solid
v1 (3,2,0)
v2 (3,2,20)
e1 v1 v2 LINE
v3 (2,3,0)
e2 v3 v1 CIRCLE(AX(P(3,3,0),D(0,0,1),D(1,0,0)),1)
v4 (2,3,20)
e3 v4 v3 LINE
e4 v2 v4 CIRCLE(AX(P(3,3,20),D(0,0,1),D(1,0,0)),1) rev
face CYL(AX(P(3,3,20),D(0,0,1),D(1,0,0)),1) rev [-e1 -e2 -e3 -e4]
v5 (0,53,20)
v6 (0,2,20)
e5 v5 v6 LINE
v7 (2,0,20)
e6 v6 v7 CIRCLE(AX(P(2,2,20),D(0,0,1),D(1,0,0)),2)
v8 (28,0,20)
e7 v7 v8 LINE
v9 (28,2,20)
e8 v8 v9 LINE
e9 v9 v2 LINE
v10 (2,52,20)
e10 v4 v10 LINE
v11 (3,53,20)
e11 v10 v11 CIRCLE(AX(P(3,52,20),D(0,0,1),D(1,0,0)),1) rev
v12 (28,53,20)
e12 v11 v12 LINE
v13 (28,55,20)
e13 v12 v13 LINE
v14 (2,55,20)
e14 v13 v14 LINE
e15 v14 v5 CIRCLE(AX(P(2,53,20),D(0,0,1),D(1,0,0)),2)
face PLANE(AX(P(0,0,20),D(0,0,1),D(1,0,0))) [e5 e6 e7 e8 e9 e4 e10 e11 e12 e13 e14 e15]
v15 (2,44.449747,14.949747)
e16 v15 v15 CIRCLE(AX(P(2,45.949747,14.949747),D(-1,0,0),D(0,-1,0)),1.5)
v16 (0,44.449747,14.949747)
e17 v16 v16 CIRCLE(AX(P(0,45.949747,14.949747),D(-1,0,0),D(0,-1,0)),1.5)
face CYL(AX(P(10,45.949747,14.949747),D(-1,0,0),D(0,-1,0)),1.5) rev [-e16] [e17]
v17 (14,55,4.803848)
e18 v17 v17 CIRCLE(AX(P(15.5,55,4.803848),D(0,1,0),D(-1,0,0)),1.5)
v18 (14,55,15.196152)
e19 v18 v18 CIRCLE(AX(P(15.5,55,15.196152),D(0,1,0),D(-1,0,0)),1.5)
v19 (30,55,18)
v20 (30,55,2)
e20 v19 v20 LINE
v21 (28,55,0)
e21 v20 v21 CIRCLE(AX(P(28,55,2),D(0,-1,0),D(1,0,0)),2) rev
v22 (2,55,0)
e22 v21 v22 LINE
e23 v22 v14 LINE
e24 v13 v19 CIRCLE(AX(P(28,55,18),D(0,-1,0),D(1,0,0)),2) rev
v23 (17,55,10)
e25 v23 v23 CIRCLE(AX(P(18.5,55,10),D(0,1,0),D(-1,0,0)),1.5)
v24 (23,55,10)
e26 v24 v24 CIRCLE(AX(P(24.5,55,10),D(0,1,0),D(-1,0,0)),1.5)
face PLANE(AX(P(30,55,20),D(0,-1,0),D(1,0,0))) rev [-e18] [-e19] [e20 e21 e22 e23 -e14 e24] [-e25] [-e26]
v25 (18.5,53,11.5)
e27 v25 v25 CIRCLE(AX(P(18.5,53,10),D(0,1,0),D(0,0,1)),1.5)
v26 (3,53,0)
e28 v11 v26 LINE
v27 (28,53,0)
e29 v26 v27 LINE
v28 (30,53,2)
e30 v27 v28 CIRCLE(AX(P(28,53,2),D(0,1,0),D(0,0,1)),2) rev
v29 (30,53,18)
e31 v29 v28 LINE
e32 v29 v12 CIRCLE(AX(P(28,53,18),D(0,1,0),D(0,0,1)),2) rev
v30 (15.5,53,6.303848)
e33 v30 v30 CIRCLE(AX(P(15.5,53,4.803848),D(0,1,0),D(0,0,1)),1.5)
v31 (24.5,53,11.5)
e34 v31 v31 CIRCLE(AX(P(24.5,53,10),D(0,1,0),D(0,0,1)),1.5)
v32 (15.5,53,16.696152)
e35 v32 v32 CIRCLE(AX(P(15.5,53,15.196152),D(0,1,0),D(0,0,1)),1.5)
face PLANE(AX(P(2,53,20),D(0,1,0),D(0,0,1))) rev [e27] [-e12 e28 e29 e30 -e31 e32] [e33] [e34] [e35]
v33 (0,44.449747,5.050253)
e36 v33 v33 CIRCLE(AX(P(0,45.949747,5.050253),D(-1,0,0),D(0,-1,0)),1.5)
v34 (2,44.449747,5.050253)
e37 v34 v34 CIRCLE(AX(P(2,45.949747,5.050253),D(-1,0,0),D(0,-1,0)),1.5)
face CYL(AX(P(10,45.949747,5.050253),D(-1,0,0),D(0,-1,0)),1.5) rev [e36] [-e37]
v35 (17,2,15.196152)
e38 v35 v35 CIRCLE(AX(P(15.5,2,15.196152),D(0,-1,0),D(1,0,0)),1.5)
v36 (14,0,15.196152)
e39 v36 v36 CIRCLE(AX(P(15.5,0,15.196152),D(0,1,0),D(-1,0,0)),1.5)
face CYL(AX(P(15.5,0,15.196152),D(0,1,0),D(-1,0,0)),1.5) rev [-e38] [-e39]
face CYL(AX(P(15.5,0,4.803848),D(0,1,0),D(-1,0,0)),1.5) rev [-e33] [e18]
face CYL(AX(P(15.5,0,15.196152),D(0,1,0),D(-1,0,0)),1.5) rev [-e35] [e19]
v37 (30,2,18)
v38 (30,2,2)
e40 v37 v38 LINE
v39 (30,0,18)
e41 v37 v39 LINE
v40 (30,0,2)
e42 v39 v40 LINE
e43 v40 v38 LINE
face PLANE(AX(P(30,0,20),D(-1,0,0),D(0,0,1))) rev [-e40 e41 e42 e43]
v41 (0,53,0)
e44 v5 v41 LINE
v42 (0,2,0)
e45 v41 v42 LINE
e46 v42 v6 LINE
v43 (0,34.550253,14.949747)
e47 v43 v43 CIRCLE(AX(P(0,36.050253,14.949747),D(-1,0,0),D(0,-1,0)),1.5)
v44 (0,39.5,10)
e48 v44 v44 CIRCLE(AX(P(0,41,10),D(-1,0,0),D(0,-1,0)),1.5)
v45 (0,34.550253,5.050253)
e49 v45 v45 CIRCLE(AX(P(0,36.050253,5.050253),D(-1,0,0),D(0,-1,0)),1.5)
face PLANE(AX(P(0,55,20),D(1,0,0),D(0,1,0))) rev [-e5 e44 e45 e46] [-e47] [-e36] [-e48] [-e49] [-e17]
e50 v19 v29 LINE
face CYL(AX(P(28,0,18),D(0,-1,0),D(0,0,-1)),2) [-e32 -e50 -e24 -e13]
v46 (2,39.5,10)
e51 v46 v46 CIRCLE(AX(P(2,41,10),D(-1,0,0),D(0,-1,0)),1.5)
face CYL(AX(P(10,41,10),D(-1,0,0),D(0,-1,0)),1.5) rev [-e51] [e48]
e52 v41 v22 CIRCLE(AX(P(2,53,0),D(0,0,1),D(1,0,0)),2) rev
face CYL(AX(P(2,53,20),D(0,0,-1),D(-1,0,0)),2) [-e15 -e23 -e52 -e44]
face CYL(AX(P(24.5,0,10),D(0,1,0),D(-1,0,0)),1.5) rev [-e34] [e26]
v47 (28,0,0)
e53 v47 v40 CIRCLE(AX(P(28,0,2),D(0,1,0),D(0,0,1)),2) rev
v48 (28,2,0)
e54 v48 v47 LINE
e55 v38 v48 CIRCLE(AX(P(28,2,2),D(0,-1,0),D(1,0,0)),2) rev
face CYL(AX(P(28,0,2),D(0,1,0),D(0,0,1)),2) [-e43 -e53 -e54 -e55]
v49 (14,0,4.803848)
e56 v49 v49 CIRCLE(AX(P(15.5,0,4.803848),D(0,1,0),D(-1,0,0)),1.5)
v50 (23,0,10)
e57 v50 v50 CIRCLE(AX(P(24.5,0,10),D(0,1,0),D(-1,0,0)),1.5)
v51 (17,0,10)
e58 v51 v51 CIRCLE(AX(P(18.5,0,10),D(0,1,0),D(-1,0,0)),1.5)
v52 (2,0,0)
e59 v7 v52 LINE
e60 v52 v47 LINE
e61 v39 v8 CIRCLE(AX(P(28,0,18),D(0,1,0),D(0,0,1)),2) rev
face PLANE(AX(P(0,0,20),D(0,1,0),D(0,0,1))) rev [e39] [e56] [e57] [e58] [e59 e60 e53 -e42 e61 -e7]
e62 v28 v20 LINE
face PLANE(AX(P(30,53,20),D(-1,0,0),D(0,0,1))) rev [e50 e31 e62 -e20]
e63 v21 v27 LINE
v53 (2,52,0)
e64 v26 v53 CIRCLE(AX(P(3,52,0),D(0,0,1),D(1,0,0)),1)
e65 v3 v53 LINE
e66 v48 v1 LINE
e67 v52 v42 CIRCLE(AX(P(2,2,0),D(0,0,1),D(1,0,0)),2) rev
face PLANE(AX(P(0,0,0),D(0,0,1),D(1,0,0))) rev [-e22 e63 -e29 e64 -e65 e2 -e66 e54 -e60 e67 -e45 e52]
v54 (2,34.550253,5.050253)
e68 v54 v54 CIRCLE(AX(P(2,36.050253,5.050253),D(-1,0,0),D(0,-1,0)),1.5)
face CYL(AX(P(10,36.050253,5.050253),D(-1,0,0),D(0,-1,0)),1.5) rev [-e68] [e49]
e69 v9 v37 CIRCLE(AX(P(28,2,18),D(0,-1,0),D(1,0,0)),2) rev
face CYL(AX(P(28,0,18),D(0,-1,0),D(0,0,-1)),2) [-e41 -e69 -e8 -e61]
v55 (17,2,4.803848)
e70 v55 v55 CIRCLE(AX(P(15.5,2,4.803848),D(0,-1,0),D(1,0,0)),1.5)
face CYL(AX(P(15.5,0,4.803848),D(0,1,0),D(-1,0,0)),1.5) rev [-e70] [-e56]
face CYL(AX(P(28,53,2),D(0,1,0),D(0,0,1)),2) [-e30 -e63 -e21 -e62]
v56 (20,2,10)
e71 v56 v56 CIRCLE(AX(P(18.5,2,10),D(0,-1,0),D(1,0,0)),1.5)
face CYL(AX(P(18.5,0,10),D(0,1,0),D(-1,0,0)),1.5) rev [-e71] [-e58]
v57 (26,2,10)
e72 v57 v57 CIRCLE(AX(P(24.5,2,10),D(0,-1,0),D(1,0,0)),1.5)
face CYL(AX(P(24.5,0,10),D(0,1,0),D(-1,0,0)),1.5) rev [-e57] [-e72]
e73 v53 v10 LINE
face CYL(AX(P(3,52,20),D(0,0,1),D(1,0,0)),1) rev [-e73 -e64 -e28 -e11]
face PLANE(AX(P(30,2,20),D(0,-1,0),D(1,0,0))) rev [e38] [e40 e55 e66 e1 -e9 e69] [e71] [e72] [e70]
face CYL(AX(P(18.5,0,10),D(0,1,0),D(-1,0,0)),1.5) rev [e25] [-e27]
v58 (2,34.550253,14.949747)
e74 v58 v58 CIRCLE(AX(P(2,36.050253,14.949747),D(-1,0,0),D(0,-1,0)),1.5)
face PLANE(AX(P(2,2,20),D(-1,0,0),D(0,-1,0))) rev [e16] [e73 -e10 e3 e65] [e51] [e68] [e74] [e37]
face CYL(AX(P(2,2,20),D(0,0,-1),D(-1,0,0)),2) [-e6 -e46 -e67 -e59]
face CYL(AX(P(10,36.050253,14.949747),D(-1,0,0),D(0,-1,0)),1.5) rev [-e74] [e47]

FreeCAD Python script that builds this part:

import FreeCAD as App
import Part
import Sketcher
from FreeCAD import Vector


def edges_at(feature, points):
    """Names of the edges that pass closest to the given points."""
    edges = feature.Shape.Edges
    near = lambda p: min(range(len(edges)), key=lambda i: edges[i].distToShape(Part.Vertex(*p))[0])
    return sorted({f"Edge{near(p) + 1}" for p in points})


def add_polygon(sketch, points):
    """Adds a closed chain of lines whose ends are joined by coincident constraints."""
    first, n = sketch.GeometryCount, len(points)
    for a, b in zip(points, points[1:] + points[:1]):
        sketch.addGeometry(Part.LineSegment(App.Vector(*a, 0), App.Vector(*b, 0)), False)
    for i in range(n):
        sketch.addConstraint(Sketcher.Constraint("Coincident", first + i, 2, first + (i + 1) % n, 1))

doc = App.newDocument("Part")
body = doc.addObject("PartDesign::Body", "Body")

sketch1 = body.newObject("Sketcher::SketchObject", "Sketch")
sketch1.AttachmentSupport = (doc.getObject("XY_Plane"), [""])
sketch1.MapMode = "FlatFace"
add_polygon(sketch1, [(0, 0), (30, 0), (30, 2), (2, 2), (2, 53), (30, 53), (30, 55), (0, 55)])
sketch1.addConstraint([
    Sketcher.Constraint("Horizontal", 0),
    Sketcher.Constraint("Vertical", 1),
    Sketcher.Constraint("Horizontal", 2),
    Sketcher.Constraint("Vertical", 3),
    Sketcher.Constraint("Horizontal", 4),
    Sketcher.Constraint("Vertical", 5),
    Sketcher.Constraint("Horizontal", 6),
    Sketcher.Constraint("Vertical", 7),
    Sketcher.Constraint("Coincident", 7, 2, -1, 1),
    Sketcher.Constraint("Vertical", 1, 2, 4, 2),
    Sketcher.Constraint("Equal", 1, 5),
    Sketcher.Constraint("DistanceX", 0, 1, 0, 2, 30.0),
    Sketcher.Constraint("DistanceX", 2, 2, 2, 1, 28.0),
    Sketcher.Constraint("DistanceY", 1, 1, 1, 2, 2.0),
    Sketcher.Constraint("DistanceY", 3, 1, 3, 2, 51.0),
])
pad1 = body.newObject("PartDesign::Pad", "Pad")
pad1.Profile = sketch1
pad1.Length = 20

sketch2 = body.newObject("Sketcher::SketchObject", "Sketch001")
sketch2.AttachmentSupport = (doc.getObject("YZ_Plane"), [""])
sketch2.MapMode = "FlatFace"
sketch2.addGeometry([
    Part.Circle(Vector(41, 10, 0), Vector(0, 0, 1), 1.5),
    Part.Circle(Vector(45.949747, 5.050253, 0), Vector(0, 0, 1), 1.5),
    Part.Circle(Vector(45.949747, 14.949747, 0), Vector(0, 0, 1), 1.5),
    Part.Circle(Vector(36.050253, 14.949747, 0), Vector(0, 0, 1), 1.5),
    Part.Circle(Vector(36.050253, 5.050253, 0), Vector(0, 0, 1), 1.5),
], False)
sketch2.addConstraint([
    Sketcher.Constraint("Equal", 0, 1),
    Sketcher.Constraint("Equal", 1, 2),
    Sketcher.Constraint("Equal", 2, 3),
    Sketcher.Constraint("Equal", 3, 4),
    Sketcher.Constraint("Horizontal", 2, 3, 3, 3),
    Sketcher.Constraint("Horizontal", 1, 3, 4, 3),
    Sketcher.Constraint("Vertical", 1, 3, 2, 3),
    Sketcher.Constraint("Vertical", 3, 3, 4, 3),
    Sketcher.Constraint("Diameter", 0, 3.0),
    Sketcher.Constraint("DistanceX", -1, 1, 0, 3, 41.0),
    Sketcher.Constraint("DistanceY", -1, 1, 0, 3, 10.0),
    Sketcher.Constraint("DistanceX", -1, 1, 1, 3, 45.949747),
    Sketcher.Constraint("DistanceY", -1, 1, 1, 3, 5.050253),
    Sketcher.Constraint("DistanceY", -1, 1, 2, 3, 14.949747),
    Sketcher.Constraint("DistanceX", -1, 1, 3, 3, 36.050253),
])
pocket1 = body.newObject("PartDesign::Pocket", "Pocket")
pocket1.Profile = sketch2
pocket1.Length = 10
pocket1.Reversed = True

sketch3 = body.newObject("Sketcher::SketchObject", "Sketch002")
sketch3.AttachmentSupport = (doc.getObject("XZ_Plane"), [""])
sketch3.MapMode = "FlatFace"
sketch3.AttachmentOffset = App.Placement(Vector(0, 0, -55), App.Rotation())
sketch3.addGeometry([
    Part.Circle(Vector(18.5, 10, 0), Vector(0, 0, 1), 1.5),
    Part.Circle(Vector(24.5, 10, 0), Vector(0, 0, 1), 1.5),
    Part.Circle(Vector(15.5, 15.196152, 0), Vector(0, 0, 1), 1.5),
    Part.Circle(Vector(15.5, 4.803848, 0), Vector(0, 0, 1), 1.5),
], False)
sketch3.addConstraint([
    Sketcher.Constraint("Equal", 0, 1),
    Sketcher.Constraint("Equal", 1, 2),
    Sketcher.Constraint("Equal", 2, 3),
    Sketcher.Constraint("Horizontal", 0, 3, 1, 3),
    Sketcher.Constraint("Vertical", 2, 3, 3, 3),
    Sketcher.Constraint("Diameter", 0, 3.0),
    Sketcher.Constraint("DistanceY", -1, 1, 0, 3, 10.0),
    Sketcher.Constraint("DistanceX", 0, 3, 1, 3, 6.0),
    Sketcher.Constraint("DistanceX", 2, 3, 0, 3, 3.0),
    Sketcher.Constraint("DistanceX", -1, 1, 0, 3, 18.5),
    Sketcher.Constraint("DistanceY", -1, 1, 2, 3, 15.196152),
    Sketcher.Constraint("DistanceY", -1, 1, 3, 3, 4.803848),
])
pocket2 = body.newObject("PartDesign::Pocket", "Pocket001")
pocket2.Profile = sketch3
pocket2.Type = "ThroughAll"
pocket2.Reversed = True
doc.recompute()

fillet = body.newObject("PartDesign::Fillet", "Fillet")
fillet.Base = (pocket2, edges_at(pocket2, [(0, 55, 10), (0, 0, 10)]))
fillet.Radius = 2
doc.recompute()

fillet2 = body.newObject("PartDesign::Fillet", "Fillet001")
fillet2.Base = (fillet, edges_at(fillet, [(2, 53, 10), (2, 2, 10)]))
fillet2.Radius = 1
doc.recompute()

fillet3 = body.newObject("PartDesign::Fillet", "Fillet002")
fillet3.Base = (fillet2, edges_at(fillet2, [
    (30, 1, 0),
    (30, 1, 20),
    (30, 54, 20),
    (30, 54, 0),
]))
fillet3.Radius = 2

doc.recompute()
